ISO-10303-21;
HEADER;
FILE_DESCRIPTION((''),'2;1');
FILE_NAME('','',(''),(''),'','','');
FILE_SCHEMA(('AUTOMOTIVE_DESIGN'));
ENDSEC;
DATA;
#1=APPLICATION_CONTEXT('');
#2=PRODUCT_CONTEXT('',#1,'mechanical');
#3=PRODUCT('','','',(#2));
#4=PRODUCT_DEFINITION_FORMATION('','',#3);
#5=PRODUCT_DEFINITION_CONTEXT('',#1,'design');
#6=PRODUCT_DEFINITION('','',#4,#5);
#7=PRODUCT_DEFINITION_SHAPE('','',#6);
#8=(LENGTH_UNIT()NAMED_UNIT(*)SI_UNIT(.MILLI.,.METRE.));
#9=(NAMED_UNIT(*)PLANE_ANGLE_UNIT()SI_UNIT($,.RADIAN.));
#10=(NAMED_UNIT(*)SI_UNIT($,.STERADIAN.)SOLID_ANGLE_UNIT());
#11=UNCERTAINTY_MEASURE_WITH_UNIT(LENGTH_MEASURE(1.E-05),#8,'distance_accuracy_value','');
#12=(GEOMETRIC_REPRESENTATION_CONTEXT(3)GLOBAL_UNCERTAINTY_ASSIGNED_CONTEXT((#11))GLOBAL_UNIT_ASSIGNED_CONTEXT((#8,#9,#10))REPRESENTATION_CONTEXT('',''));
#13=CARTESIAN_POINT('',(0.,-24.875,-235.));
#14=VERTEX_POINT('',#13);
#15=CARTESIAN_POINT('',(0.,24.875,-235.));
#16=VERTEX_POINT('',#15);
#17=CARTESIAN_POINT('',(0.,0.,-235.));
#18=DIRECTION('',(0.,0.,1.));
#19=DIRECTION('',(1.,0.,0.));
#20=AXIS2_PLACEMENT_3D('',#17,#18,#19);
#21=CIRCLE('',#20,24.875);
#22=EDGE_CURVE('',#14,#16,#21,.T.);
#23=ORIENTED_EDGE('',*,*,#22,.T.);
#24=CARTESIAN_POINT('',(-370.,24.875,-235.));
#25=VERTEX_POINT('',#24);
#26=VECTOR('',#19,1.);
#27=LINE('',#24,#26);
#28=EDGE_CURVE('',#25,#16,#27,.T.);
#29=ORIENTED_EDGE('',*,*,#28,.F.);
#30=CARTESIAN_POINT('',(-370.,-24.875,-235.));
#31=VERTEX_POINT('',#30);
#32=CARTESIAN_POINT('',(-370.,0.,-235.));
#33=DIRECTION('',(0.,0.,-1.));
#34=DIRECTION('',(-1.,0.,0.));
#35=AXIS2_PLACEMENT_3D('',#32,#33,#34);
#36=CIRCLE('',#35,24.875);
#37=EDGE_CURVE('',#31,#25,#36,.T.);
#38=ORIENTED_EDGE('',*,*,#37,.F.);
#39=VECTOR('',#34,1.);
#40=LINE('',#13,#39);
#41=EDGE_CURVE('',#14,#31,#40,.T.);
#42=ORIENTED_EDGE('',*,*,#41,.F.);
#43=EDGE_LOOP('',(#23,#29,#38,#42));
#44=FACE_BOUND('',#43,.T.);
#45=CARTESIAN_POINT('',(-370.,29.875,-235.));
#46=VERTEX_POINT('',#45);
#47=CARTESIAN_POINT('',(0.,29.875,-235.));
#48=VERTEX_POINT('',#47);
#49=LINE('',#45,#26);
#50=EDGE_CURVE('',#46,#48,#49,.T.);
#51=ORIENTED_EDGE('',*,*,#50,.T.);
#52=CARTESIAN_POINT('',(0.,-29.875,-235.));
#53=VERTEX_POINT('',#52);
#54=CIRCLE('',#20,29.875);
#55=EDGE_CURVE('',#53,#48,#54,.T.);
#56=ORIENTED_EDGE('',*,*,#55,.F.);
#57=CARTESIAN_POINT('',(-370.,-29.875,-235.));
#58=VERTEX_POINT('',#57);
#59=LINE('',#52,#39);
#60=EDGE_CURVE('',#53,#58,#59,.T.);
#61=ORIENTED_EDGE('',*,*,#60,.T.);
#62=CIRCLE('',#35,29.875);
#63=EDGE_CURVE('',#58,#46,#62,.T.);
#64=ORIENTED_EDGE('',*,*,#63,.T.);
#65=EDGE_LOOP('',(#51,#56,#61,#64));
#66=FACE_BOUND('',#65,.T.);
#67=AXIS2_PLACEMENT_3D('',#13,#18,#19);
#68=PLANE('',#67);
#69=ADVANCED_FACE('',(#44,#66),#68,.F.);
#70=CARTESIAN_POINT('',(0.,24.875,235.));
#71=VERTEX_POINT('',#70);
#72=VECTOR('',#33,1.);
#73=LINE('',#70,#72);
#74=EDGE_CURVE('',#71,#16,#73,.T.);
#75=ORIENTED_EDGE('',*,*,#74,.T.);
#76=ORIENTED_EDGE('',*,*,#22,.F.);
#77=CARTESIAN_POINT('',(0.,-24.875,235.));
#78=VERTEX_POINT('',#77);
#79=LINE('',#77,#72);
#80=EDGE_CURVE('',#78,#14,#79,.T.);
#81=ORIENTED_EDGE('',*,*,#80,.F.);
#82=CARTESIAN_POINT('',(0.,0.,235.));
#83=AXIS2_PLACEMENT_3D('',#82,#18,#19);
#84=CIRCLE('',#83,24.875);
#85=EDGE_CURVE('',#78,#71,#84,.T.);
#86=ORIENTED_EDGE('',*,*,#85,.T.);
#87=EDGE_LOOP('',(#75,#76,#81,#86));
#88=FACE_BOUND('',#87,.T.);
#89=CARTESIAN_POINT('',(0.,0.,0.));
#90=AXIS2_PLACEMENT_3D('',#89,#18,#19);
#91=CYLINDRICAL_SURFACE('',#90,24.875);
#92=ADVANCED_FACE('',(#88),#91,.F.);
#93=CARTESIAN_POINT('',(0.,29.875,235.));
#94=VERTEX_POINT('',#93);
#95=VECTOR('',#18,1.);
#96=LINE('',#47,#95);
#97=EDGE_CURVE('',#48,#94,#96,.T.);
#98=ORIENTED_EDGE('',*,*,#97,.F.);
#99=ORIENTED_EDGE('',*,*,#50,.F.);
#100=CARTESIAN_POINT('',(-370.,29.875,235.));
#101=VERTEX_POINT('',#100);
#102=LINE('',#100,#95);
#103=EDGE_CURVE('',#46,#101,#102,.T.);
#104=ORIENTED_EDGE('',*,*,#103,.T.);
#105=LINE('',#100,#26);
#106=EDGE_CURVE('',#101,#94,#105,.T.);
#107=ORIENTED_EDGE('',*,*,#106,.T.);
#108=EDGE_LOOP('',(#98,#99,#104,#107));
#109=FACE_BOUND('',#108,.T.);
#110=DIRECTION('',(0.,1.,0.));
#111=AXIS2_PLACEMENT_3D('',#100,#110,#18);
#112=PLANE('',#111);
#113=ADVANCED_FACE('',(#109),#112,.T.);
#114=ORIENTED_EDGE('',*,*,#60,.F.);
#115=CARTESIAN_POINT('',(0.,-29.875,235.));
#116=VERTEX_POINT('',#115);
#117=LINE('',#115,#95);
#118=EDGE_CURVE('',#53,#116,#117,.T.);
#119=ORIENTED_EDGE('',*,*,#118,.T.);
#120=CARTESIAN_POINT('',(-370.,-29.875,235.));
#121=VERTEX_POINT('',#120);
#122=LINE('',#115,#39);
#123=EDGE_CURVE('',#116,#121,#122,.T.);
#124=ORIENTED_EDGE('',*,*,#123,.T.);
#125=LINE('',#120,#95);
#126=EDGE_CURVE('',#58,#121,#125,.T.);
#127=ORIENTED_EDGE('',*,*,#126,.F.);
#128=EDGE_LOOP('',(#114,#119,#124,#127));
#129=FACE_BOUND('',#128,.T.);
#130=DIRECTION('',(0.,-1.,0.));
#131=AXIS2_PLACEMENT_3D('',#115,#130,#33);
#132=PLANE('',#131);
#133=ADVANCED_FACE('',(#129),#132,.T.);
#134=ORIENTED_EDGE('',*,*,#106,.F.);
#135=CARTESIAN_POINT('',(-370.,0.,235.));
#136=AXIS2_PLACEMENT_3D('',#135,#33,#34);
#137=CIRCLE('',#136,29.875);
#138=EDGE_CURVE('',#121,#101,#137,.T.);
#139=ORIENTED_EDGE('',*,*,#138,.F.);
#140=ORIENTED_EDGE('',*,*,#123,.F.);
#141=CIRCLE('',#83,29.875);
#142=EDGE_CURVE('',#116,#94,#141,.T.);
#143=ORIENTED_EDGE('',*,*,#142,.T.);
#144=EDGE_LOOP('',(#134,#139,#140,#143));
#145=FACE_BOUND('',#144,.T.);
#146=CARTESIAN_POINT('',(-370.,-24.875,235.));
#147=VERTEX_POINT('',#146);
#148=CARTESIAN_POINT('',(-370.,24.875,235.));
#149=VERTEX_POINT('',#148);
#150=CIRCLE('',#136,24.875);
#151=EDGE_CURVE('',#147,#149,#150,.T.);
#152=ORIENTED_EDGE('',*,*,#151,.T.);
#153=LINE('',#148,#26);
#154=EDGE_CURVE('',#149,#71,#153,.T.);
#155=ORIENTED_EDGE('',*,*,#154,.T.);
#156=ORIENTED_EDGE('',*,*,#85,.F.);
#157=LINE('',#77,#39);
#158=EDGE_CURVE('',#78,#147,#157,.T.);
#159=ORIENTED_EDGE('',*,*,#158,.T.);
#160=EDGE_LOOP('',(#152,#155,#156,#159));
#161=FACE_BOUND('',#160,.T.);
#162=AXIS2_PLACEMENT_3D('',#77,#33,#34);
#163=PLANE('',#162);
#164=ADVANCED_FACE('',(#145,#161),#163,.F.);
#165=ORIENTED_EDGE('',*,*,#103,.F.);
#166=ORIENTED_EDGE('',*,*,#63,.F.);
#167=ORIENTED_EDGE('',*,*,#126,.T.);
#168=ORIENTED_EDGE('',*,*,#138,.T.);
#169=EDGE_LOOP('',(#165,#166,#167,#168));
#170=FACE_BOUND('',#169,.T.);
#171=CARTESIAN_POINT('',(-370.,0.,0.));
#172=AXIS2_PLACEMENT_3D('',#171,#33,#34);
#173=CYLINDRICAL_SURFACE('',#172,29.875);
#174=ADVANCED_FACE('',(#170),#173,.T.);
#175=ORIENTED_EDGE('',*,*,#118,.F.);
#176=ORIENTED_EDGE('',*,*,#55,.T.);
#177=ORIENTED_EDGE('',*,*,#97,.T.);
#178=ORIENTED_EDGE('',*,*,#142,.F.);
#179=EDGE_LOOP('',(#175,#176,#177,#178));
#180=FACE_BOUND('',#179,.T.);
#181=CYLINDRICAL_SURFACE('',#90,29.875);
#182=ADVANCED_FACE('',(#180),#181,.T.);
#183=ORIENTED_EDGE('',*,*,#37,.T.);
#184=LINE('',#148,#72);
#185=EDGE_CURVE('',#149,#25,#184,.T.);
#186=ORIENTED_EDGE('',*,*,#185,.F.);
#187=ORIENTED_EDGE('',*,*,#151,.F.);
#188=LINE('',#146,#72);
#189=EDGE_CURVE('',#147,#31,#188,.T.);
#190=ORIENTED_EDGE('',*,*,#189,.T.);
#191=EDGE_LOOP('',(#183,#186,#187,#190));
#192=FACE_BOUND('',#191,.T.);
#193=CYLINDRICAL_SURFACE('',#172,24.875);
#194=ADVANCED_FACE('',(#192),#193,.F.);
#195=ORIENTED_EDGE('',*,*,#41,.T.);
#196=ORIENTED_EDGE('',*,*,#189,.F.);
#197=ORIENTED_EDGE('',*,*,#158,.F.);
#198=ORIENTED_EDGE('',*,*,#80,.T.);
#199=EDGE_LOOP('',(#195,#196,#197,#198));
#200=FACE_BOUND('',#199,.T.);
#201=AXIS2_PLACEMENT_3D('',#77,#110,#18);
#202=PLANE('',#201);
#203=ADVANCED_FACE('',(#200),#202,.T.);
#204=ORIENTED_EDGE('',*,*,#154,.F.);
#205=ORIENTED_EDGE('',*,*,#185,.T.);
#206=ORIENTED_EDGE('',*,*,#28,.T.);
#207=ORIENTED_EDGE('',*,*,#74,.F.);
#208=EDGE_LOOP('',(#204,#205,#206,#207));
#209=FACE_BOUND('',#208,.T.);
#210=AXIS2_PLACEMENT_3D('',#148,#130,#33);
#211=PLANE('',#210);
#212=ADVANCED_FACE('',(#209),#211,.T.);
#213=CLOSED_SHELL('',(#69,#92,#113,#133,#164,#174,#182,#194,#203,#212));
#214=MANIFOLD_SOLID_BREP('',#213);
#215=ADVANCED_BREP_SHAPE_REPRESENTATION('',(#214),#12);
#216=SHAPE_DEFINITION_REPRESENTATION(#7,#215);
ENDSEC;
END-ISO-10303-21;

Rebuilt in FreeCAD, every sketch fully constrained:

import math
import FreeCAD as App
import Part
import Sketcher
from FreeCAD import Vector
Q = App.Units.Quantity

doc = App.newDocument("Part")
body = doc.addObject("PartDesign::Body", "Body")

# Sketch on YZ plane
sketch1 = body.newObject("Sketcher::SketchObject", "Sketch")
sketch1.AttachmentSupport = (doc.getObject("YZ_Plane"), [""])
sketch1.MapMode = "FlatFace"
sketch1.addGeometry([
    Part.LineSegment(Vector(30, 235, 0), Vector(25, 235, 0)),
    Part.LineSegment(Vector(25, 235, 0), Vector(25, -235, 0)),
    Part.LineSegment(Vector(25, -235, 0), Vector(30, -235, 0)),
    Part.LineSegment(Vector(30, -235, 0), Vector(30, 235, 0)),
], False)
sketch1.addConstraint([
    Sketcher.Constraint("Coincident", 0, 2, 1, 1),
    Sketcher.Constraint("Coincident", 1, 2, 2, 1),
    Sketcher.Constraint("Coincident", 2, 2, 3, 1),
    Sketcher.Constraint("Coincident", 3, 2, 0, 1),
    Sketcher.Constraint("Horizontal", 0),
    Sketcher.Constraint("Vertical", 1),
    Sketcher.Constraint("Horizontal", 2),
    Sketcher.Constraint("Vertical", 3),
    Sketcher.Constraint("DistanceX", 0, 2, 0, 1, Q("5 mm")),
    Sketcher.Constraint("DistanceY", 1, 2, 1, 1, Q("470 mm")),
    Sketcher.Constraint("DistanceY", -1, 1, 0, 2, Q("235 mm")),
    Sketcher.Constraint("DistanceX", -1, 1, 0, 2, Q("24.875 mm")),
])

# Sketch on XY plane
sketch2 = body.newObject("Sketcher::SketchObject", "Sketch001")
sketch2.AttachmentSupport = (doc.getObject("XY_Plane"), [""])
sketch2.MapMode = "FlatFace"
sketch2.addGeometry([
    Part.LineSegment(Vector(0, -25, 0), Vector(-370, -25, 0)),
    Part.ArcOfCircle(Part.Circle(Vector(-370, 0, 0), Vector(0, 0, 1), 25), math.radians(90), math.radians(270)),
    Part.LineSegment(Vector(-370, 25, 0), Vector(0, 25, 0)),
    Part.ArcOfCircle(Part.Circle(Vector(0, 0, 0), Vector(0, 0, 1), 25), math.radians(-90), math.radians(90)),
], False)
sketch2.addConstraint([
    Sketcher.Constraint("Tangent", 0, 2, 1, 2),
    Sketcher.Constraint("Tangent", 1, 1, 2, 1),
    Sketcher.Constraint("Tangent", 2, 2, 3, 2),
    Sketcher.Constraint("Tangent", 3, 1, 0, 1),
    Sketcher.Constraint("Horizontal", 0),
    Sketcher.Constraint("Horizontal", 2),
    Sketcher.Constraint("Coincident", 3, 3, -1, 1),
    Sketcher.Constraint("DistanceX", 0, 2, 0, 1, Q("370 mm")),
    Sketcher.Constraint("Radius", 1, Q("24.875 mm")),
])
doc.recompute()

additivepipe = body.newObject("PartDesign::AdditivePipe", "AdditivePipe")
additivepipe.Profile = sketch1
additivepipe.Spine = (sketch2, ["Edge1", "Edge2", "Edge3", "Edge4"])

doc.recompute()
